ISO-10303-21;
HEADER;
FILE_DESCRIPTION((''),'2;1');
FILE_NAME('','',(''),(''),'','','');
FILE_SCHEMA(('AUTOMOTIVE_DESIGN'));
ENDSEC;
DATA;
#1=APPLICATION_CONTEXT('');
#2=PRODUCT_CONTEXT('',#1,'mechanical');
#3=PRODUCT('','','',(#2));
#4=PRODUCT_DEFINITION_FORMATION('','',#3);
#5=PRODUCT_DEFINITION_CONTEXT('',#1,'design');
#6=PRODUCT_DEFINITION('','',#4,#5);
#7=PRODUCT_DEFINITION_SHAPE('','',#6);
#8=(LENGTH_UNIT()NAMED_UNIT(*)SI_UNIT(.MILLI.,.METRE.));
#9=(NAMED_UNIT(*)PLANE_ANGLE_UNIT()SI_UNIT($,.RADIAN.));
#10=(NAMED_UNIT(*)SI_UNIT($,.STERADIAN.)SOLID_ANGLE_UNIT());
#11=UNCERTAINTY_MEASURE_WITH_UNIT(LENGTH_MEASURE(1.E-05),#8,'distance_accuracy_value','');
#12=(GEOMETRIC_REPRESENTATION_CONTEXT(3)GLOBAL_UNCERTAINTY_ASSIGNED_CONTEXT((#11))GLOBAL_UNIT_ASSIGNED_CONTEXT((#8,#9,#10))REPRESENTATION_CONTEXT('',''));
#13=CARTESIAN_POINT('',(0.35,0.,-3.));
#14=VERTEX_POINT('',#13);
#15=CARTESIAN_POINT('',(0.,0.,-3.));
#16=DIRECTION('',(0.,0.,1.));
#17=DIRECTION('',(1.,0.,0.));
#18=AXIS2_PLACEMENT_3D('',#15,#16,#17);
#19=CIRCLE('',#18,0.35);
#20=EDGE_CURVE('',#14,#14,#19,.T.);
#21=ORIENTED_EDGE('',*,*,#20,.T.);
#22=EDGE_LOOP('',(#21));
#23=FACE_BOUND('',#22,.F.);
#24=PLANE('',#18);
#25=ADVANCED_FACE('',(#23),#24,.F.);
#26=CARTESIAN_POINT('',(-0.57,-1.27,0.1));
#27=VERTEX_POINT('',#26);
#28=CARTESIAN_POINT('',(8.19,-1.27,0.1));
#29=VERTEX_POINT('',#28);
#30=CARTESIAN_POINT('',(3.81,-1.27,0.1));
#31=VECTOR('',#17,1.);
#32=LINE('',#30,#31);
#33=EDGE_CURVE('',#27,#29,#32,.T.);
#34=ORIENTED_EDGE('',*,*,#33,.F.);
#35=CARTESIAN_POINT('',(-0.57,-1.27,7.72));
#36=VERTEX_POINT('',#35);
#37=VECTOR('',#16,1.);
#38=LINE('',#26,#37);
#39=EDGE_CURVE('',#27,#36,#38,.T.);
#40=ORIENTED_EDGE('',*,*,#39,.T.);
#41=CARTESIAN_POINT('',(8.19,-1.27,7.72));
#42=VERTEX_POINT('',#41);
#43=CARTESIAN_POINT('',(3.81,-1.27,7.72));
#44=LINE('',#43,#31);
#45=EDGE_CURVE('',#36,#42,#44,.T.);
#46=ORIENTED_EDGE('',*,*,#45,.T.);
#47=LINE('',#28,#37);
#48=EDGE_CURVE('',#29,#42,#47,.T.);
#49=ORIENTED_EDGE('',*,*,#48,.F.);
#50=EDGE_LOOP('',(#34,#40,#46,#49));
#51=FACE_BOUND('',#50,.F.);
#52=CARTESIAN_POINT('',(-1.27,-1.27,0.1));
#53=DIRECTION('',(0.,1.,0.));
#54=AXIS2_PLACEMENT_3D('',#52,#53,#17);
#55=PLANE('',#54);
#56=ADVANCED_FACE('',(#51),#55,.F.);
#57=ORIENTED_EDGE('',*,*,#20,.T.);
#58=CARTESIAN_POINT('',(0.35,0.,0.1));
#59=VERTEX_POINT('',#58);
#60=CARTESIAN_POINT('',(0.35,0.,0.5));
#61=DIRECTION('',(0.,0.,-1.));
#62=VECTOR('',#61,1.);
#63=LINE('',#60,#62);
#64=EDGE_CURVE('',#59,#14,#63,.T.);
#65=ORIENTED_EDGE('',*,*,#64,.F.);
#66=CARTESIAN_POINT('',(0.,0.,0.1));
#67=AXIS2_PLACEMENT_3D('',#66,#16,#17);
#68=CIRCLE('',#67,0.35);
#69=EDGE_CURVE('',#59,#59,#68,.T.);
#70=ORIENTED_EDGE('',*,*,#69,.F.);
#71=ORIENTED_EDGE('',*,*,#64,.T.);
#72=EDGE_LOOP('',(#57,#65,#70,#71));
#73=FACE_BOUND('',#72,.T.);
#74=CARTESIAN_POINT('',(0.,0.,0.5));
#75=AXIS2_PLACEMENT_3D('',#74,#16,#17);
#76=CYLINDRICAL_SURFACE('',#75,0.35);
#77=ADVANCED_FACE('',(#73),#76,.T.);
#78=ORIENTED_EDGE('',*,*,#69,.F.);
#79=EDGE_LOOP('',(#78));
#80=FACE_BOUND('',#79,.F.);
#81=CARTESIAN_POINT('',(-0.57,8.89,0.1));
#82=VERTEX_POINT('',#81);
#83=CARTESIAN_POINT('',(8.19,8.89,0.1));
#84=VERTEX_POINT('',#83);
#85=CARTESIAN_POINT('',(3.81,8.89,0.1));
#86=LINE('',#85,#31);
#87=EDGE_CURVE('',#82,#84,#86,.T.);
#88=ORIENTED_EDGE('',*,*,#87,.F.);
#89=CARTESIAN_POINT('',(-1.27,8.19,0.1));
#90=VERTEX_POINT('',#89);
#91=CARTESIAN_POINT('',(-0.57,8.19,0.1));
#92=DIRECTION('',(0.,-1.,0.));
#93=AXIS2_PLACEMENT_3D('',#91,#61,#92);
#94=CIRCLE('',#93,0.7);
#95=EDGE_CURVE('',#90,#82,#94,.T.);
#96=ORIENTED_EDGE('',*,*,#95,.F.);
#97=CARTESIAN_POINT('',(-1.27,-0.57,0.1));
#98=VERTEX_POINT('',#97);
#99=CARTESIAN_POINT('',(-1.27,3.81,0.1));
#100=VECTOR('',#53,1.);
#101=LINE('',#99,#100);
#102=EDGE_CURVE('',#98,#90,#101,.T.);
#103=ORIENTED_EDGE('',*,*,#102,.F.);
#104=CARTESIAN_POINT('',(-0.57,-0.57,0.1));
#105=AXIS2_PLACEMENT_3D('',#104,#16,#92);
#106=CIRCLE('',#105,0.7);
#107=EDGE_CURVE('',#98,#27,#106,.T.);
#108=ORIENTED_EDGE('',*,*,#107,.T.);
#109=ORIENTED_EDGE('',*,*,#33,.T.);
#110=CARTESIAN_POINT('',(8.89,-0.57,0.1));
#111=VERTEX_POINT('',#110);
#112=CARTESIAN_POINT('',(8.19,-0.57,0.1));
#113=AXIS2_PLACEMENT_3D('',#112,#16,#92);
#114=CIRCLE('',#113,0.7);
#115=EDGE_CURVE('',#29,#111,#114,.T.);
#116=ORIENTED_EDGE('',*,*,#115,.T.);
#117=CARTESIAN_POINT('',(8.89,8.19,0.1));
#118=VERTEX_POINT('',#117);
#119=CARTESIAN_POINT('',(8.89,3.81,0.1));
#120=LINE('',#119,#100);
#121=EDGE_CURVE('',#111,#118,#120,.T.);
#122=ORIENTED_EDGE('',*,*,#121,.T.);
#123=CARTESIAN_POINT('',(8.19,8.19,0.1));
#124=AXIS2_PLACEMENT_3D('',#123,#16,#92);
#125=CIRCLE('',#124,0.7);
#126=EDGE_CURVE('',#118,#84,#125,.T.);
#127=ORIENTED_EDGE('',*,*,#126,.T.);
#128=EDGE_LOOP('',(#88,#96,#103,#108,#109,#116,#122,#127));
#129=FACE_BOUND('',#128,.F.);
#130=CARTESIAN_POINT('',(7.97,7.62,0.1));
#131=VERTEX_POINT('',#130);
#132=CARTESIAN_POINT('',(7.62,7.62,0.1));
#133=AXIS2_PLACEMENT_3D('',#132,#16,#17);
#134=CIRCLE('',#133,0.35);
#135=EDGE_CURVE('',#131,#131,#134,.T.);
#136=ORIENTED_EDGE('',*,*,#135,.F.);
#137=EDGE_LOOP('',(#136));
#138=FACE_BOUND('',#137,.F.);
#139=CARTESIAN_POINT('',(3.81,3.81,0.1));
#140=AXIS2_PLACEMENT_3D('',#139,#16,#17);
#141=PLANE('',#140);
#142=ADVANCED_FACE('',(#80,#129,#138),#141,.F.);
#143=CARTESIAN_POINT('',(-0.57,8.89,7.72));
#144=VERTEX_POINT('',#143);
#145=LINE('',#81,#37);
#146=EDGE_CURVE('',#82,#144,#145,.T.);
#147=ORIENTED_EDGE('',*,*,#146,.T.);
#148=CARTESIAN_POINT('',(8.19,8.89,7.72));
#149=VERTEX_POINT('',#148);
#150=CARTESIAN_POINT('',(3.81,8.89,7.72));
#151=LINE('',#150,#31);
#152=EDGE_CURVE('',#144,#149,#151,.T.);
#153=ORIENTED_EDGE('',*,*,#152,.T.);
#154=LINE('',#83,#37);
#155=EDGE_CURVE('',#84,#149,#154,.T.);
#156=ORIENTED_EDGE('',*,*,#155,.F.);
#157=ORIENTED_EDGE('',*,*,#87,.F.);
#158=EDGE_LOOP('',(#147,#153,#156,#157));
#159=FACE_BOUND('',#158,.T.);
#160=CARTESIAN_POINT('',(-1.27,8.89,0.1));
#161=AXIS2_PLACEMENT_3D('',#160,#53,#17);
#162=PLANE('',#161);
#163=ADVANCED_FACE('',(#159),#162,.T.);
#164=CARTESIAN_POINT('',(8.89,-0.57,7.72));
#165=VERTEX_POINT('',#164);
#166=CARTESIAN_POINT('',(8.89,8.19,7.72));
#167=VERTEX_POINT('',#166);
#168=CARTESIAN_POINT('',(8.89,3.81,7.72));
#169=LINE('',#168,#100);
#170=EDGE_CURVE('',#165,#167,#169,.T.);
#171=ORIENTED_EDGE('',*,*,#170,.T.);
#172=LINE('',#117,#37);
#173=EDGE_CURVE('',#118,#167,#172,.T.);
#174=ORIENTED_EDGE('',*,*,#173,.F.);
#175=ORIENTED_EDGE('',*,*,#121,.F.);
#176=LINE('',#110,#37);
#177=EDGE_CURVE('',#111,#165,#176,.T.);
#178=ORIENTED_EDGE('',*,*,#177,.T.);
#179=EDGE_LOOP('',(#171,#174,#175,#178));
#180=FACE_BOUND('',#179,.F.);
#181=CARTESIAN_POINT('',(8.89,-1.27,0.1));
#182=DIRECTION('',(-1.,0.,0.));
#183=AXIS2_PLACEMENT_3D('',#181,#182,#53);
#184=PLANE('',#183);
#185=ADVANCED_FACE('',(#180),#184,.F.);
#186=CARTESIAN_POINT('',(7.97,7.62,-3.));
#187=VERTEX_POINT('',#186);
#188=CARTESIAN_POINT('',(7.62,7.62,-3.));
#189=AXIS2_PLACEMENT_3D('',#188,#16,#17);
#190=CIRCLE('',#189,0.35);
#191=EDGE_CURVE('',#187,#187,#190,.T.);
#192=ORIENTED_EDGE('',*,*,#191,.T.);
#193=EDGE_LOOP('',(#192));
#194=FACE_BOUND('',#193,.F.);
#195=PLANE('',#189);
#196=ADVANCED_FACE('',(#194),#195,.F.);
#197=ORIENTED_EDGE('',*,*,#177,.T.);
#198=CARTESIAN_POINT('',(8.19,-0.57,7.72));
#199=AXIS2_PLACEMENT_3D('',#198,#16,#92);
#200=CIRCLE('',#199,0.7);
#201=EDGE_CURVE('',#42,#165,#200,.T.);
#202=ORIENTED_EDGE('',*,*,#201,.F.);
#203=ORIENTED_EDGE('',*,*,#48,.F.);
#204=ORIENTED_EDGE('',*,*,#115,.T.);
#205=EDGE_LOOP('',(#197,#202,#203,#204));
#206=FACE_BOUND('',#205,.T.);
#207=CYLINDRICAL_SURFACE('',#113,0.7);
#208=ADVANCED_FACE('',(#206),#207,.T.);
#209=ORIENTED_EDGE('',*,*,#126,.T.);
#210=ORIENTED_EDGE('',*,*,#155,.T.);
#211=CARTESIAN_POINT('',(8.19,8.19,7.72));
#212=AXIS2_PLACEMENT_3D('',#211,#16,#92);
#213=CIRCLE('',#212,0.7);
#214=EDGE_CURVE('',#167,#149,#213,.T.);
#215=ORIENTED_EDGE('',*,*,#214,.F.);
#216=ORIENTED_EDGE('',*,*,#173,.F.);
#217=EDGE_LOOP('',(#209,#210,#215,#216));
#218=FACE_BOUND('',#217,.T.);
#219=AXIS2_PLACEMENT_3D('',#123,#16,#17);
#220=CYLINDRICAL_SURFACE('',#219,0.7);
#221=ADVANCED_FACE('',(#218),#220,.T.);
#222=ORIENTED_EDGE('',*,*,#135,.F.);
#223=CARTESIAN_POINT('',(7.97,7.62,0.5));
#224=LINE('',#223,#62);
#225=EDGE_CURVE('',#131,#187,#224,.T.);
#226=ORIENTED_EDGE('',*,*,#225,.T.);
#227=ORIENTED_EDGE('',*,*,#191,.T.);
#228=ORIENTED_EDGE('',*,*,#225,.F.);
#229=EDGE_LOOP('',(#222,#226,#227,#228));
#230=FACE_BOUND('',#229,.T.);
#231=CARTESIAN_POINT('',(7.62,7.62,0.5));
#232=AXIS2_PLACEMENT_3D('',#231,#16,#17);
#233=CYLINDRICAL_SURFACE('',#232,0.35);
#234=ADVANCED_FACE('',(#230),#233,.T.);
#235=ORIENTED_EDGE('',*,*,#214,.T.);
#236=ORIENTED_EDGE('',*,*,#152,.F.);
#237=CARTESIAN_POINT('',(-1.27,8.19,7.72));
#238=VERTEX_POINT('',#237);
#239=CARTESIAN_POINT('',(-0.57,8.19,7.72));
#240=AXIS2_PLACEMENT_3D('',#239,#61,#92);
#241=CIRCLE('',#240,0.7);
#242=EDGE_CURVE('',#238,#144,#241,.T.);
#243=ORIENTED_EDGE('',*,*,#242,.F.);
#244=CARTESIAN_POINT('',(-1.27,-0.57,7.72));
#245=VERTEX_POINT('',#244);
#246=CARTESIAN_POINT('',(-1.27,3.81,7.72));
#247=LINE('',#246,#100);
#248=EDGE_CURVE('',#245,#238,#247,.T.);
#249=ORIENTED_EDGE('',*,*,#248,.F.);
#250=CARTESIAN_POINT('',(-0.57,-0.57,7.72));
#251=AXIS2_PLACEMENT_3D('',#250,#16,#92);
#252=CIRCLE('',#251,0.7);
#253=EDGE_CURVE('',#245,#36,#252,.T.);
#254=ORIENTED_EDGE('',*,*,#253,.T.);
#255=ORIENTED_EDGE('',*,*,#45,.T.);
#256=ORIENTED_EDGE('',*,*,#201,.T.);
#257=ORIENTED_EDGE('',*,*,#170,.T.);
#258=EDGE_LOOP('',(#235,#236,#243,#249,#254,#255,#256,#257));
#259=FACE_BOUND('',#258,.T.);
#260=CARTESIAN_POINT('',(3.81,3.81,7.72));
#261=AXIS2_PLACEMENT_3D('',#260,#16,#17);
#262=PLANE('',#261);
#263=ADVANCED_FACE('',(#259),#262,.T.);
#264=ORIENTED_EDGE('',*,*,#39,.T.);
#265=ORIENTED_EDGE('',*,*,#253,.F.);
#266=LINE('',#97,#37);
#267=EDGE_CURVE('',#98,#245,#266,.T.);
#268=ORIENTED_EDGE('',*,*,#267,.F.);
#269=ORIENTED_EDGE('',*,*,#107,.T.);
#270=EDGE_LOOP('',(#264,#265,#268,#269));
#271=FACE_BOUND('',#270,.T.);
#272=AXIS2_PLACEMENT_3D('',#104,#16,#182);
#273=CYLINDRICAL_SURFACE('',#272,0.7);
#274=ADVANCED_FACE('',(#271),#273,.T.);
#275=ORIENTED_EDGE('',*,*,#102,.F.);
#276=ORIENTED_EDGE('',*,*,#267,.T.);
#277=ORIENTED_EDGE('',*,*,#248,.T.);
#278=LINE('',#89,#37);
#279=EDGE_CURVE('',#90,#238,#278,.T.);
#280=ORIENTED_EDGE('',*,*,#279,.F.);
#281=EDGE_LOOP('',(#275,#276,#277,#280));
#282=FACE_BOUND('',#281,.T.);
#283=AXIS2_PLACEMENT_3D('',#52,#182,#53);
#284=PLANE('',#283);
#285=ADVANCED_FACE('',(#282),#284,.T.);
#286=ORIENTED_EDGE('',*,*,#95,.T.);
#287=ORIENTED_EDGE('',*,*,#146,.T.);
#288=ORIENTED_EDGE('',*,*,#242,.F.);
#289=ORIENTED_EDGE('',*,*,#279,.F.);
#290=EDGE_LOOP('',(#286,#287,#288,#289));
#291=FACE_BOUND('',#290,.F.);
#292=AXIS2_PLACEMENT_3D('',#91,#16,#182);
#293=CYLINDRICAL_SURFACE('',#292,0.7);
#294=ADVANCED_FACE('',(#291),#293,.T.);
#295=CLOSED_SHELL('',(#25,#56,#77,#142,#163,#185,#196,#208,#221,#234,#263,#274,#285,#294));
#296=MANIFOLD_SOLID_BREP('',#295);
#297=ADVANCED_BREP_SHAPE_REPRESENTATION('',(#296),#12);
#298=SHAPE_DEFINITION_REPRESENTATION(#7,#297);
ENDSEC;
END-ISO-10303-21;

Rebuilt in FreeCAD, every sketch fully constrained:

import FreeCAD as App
import Part
import Sketcher


def edges_at(feature, points):
    """Names of the edges that pass closest to the given points."""
    edges = feature.Shape.Edges
    near = lambda p: min(range(len(edges)), key=lambda i: edges[i].distToShape(Part.Vertex(*p))[0])
    return sorted({f"Edge{near(p) + 1}" for p in points})

doc = App.newDocument("Part")
body = doc.addObject("PartDesign::Body", "Body")
body.AllowCompound = True

# Sketch on XY plane
sketch1 = doc.addObject("Sketcher::SketchObject", "Sketch")
body.addObject(sketch1)
sketch1.AttachmentSupport = (doc.XY_Plane, [""])
sketch1.MapMode = "FlatFace"
sketch1.AttachmentOffset = App.Placement(App.Vector(0, 0, 0.5), App.Rotation())
sketch1.addGeometry(Part.Circle(App.Vector(0, 0, 0), App.Vector(0, 0, 1), 0.35), False)
sketch1.addGeometry(Part.Circle(App.Vector(7.62, 7.62, 0), App.Vector(0, 0, 1), 0.35), False)
sketch1.addConstraint(Sketcher.Constraint("Coincident", 0, 3, -1, 1))
sketch1.addConstraint(Sketcher.Constraint("Equal", 0, 1))
sketch1.addConstraint(Sketcher.Constraint("Diameter", 0, 0.7))
sketch1.addConstraint(Sketcher.Constraint("DistanceX", -1, 1, 1, 3, 7.62))
sketch1.addConstraint(Sketcher.Constraint("DistanceY", -1, 1, 1, 3, 7.62))
pad1 = doc.addObject("PartDesign::Pad", "Pad")
body.addObject(pad1)
pad1.Profile = sketch1
pad1.Length = 3.5
pad1.Reversed = True
body2 = doc.addObject("PartDesign::Body", "Body001")

# Sketch on XY plane
sketch2 = doc.addObject("Sketcher::SketchObject", "Sketch001")
body2.addObject(sketch2)
sketch2.AttachmentSupport = (doc.getObject("XY_Plane001"), [""])
sketch2.MapMode = "FlatFace"
sketch2.AttachmentOffset = App.Placement(App.Vector(0, 0, 0.1), App.Rotation())
sketch2.addGeometry(Part.LineSegment(App.Vector(-1.27, 8.89, 0), App.Vector(-1.27, -1.27, 0)), False)
sketch2.addGeometry(Part.LineSegment(App.Vector(-1.27, -1.27, 0), App.Vector(8.89, -1.27, 0)), False)
sketch2.addGeometry(Part.LineSegment(App.Vector(8.89, -1.27, 0), App.Vector(8.89, 8.89, 0)), False)
sketch2.addGeometry(Part.LineSegment(App.Vector(8.89, 8.89, 0), App.Vector(-1.27, 8.89, 0)), False)
sketch2.addConstraint(Sketcher.Constraint("Coincident", 0, 2, 1, 1))
sketch2.addConstraint(Sketcher.Constraint("Coincident", 1, 2, 2, 1))
sketch2.addConstraint(Sketcher.Constraint("Coincident", 2, 2, 3, 1))
sketch2.addConstraint(Sketcher.Constraint("Coincident", 3, 2, 0, 1))
sketch2.addConstraint(Sketcher.Constraint("Vertical", 0))
sketch2.addConstraint(Sketcher.Constraint("Horizontal", 1))
sketch2.addConstraint(Sketcher.Constraint("Vertical", 2))
sketch2.addConstraint(Sketcher.Constraint("Horizontal", 3))
sketch2.addConstraint(Sketcher.Constraint("Equal", 3, 0))
sketch2.addConstraint(Sketcher.Constraint("DistanceX", 1, 1, 1, 2, 10.16))
sketch2.addConstraint(Sketcher.Constraint("DistanceX", 0, 2, -1, 1, 1.27))
sketch2.addConstraint(Sketcher.Constraint("DistanceY", 0, 2, -1, 1, 1.27))
pad2 = doc.addObject("PartDesign::Pad", "Pad001")
body2.addObject(pad2)
pad2.Profile = sketch2
pad2.Length = 7.62
doc.recompute()

fillet = doc.addObject("PartDesign::Fillet", "Fillet")
body2.addObject(fillet)
fillet.Base = (pad2, edges_at(pad2, [
    (8.89, -1.27, 3.91),
    (8.89, 8.89, 3.91),
    (-1.27, -1.27, 3.91),
    (-1.27, 8.89, 3.91),
]))
fillet.Radius = 0.7
doc.recompute()

boolean = doc.addObject("PartDesign::Boolean", "Boolean")
body2.addObject(boolean)
boolean.Type = "Fuse"
boolean.addObjects([body])

doc.recompute()
